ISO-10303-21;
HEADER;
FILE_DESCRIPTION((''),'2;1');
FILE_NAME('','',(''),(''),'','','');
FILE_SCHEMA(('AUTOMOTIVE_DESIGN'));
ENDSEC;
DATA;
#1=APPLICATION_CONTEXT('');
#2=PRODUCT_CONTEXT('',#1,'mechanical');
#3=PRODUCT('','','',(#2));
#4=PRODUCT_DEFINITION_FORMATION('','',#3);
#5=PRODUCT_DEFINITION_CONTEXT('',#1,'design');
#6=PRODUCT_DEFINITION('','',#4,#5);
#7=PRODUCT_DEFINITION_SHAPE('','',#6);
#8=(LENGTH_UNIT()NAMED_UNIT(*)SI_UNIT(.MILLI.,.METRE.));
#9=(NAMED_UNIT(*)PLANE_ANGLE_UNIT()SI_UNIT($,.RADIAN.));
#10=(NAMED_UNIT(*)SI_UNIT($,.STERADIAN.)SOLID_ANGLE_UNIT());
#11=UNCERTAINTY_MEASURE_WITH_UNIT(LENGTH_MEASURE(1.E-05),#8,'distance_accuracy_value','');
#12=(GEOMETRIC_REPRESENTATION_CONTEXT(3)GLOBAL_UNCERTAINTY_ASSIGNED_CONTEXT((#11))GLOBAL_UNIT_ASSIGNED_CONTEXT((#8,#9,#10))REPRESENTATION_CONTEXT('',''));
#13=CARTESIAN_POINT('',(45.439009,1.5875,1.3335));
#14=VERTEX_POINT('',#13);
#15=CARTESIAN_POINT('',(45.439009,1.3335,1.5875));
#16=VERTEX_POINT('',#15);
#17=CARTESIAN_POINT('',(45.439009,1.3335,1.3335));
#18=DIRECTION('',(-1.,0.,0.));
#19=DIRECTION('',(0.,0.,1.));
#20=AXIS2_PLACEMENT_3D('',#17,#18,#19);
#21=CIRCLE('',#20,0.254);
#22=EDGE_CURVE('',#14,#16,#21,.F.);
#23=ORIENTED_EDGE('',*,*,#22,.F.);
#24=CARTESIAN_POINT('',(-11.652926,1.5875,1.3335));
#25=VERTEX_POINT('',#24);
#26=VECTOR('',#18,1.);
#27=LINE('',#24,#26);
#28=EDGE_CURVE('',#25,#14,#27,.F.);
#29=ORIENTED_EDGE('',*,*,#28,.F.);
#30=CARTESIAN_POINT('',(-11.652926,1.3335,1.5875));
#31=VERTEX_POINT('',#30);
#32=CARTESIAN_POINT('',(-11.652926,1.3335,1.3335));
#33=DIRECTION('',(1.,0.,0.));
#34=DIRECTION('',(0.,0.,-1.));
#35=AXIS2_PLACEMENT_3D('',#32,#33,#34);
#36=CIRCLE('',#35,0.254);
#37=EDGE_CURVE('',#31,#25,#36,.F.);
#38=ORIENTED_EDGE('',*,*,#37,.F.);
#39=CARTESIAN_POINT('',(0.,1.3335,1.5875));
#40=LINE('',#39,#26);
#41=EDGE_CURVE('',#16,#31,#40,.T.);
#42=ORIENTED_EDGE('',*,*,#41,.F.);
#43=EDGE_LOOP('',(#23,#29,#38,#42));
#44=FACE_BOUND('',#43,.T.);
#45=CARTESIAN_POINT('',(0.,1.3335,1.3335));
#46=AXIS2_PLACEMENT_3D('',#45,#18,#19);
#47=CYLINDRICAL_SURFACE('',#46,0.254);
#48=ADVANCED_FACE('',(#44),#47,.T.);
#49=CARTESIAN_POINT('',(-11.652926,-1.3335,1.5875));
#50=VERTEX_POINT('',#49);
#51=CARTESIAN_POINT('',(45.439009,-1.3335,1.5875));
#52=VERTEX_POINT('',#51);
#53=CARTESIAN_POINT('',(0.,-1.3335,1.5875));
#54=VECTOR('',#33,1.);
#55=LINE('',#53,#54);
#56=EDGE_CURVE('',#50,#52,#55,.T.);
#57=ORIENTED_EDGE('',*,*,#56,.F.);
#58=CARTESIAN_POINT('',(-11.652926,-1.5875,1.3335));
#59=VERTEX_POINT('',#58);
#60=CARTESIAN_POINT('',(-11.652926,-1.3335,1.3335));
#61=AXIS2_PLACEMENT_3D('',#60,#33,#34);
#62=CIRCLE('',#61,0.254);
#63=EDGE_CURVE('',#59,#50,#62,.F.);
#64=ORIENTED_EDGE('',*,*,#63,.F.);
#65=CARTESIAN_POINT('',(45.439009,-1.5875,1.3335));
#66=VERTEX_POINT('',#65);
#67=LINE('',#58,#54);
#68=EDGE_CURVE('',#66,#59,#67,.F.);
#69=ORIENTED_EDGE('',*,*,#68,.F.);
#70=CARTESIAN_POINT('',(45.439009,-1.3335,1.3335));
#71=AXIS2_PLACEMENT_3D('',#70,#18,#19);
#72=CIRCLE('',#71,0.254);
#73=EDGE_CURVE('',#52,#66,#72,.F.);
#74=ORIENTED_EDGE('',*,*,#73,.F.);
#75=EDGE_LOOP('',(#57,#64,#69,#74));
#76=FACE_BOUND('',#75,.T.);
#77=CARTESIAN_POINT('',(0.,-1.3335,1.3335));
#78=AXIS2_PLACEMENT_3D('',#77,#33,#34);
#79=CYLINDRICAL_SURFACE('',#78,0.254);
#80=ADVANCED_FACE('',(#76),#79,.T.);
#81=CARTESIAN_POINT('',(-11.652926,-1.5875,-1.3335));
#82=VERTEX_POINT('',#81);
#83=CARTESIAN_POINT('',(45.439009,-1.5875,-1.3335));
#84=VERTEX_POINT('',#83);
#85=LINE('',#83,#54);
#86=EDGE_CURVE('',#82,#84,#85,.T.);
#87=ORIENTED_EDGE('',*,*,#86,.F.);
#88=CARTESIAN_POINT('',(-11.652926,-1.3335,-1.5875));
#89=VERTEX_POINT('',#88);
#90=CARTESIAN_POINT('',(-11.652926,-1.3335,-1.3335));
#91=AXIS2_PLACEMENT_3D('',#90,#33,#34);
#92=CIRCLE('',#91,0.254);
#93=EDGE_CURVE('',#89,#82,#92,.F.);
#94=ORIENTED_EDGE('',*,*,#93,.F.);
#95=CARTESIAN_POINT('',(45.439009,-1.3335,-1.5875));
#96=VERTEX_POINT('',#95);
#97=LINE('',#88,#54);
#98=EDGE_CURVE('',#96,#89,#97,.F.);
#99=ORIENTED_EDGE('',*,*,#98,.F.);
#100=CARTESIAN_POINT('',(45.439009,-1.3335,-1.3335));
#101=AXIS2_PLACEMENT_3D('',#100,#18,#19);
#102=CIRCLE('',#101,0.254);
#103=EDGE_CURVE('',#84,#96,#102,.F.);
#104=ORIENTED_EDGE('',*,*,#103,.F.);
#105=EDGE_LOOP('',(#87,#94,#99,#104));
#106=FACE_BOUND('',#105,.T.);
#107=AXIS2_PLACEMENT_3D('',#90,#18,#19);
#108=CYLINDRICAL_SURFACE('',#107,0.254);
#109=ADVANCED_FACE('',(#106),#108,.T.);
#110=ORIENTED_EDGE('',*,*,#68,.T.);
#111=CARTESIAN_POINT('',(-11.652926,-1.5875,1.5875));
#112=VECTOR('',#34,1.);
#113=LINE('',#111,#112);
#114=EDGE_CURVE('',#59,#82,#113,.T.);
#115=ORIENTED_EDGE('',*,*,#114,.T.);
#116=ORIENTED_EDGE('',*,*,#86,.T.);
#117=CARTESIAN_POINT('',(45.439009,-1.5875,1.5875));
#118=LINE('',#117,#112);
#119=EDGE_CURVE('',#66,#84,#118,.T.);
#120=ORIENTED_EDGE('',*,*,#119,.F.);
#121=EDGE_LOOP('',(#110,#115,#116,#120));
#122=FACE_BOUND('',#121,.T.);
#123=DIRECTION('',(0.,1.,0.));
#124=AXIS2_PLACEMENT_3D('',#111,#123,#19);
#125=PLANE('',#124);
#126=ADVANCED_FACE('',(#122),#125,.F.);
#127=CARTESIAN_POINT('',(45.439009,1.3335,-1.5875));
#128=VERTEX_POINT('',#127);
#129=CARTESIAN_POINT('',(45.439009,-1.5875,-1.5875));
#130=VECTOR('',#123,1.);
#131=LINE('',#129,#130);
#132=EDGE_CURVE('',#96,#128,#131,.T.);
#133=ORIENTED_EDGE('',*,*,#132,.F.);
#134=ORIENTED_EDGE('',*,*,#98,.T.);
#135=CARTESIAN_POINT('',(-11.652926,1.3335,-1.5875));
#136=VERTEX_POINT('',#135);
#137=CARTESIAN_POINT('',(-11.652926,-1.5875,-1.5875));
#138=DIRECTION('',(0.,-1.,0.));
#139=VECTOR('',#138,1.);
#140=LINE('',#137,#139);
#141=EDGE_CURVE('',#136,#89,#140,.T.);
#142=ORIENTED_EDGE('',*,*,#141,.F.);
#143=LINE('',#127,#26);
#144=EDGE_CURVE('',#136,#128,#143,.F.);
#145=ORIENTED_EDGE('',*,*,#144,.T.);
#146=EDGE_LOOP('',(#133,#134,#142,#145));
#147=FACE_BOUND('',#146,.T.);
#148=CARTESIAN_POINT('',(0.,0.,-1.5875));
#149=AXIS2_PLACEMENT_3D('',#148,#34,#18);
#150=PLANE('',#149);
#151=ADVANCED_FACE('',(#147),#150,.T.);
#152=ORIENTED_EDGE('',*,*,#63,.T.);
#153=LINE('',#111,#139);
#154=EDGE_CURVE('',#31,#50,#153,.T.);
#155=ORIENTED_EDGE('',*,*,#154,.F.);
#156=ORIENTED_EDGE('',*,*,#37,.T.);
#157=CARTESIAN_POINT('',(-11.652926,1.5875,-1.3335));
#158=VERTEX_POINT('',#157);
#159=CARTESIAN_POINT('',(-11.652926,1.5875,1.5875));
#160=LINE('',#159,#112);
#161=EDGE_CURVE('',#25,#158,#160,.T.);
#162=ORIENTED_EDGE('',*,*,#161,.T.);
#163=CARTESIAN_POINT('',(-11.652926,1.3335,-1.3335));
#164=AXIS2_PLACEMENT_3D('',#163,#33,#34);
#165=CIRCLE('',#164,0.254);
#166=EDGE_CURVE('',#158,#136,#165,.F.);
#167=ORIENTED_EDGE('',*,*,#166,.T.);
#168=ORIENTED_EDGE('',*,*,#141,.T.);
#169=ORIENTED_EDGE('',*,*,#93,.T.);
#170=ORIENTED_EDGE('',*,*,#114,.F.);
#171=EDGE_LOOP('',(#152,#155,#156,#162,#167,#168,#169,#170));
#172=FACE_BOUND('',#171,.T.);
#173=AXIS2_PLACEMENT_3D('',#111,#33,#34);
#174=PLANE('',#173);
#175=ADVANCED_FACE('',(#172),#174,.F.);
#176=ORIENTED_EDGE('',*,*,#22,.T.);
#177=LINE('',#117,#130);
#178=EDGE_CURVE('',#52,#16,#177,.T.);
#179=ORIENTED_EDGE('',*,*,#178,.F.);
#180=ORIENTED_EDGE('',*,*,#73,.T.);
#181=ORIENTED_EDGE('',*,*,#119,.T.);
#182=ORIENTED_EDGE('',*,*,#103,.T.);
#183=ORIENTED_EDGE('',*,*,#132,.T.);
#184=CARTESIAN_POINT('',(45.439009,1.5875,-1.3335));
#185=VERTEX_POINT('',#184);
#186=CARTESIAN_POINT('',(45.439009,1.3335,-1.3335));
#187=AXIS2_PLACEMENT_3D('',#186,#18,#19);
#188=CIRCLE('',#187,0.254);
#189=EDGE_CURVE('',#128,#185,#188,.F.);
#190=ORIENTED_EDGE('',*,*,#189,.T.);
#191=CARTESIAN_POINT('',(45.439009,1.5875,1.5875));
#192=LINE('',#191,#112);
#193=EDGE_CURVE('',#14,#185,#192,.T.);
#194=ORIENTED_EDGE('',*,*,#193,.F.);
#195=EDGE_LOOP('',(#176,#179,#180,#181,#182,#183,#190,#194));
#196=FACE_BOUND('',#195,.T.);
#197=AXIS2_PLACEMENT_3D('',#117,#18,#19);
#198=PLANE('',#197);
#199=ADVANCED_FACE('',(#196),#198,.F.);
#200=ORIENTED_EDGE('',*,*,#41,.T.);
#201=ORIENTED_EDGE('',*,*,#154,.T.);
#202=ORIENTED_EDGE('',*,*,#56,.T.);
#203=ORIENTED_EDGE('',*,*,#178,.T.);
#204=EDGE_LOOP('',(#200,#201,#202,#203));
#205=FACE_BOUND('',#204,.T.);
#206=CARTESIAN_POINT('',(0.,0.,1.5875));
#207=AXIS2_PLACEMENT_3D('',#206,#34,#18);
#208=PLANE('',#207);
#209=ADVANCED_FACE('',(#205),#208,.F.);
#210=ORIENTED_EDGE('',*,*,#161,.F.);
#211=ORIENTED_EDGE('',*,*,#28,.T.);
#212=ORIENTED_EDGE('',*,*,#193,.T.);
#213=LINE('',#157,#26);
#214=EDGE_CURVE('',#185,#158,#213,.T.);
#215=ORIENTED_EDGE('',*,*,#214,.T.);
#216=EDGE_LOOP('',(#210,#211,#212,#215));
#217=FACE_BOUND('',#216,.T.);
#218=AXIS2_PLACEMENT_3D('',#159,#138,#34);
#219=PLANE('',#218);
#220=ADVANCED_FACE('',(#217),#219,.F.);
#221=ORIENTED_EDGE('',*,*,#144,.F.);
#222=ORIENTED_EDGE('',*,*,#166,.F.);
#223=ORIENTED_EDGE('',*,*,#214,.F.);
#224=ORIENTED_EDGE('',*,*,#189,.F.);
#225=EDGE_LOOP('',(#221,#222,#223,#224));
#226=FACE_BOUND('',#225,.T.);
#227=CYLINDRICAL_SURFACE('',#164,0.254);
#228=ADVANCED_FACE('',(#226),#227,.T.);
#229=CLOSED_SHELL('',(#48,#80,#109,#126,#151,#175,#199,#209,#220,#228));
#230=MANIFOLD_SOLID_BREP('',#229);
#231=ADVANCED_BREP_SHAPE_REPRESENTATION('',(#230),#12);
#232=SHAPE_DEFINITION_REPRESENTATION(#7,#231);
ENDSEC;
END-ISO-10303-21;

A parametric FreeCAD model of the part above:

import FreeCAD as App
import Part
import Sketcher
from FreeCAD import Vector
Q = App.Units.Quantity


def edges_at(feature, points):
    """Names of the edges that pass closest to the given points."""
    edges = feature.Shape.Edges
    near = lambda p: min(range(len(edges)), key=lambda i: edges[i].distToShape(Part.Vertex(*p))[0])
    return sorted({f"Edge{near(p) + 1}" for p in points})

doc = App.newDocument("Part")
body = doc.addObject("PartDesign::Body", "Body")

# Sketch on XY plane
sketch1 = body.newObject("Sketcher::SketchObject", "Sketch")
sketch1.AttachmentSupport = (doc.getObject("XY_Plane"), [""])
sketch1.MapMode = "FlatFace"
sketch1.addGeometry([
    Part.LineSegment(Vector(-11.7, 1.6, 0), Vector(-11.7, -1.6, 0)),
    Part.LineSegment(Vector(-11.7, -1.6, 0), Vector(45.4, -1.6, 0)),
    Part.LineSegment(Vector(45.4, -1.6, 0), Vector(45.4, 1.6, 0)),
    Part.LineSegment(Vector(45.4, 1.6, 0), Vector(-11.7, 1.6, 0)),
], False)
sketch1.addConstraint([
    Sketcher.Constraint("Coincident", 0, 2, 1, 1),
    Sketcher.Constraint("Coincident", 1, 2, 2, 1),
    Sketcher.Constraint("Coincident", 2, 2, 3, 1),
    Sketcher.Constraint("Coincident", 3, 2, 0, 1),
    Sketcher.Constraint("Vertical", 0),
    Sketcher.Constraint("Horizontal", 1),
    Sketcher.Constraint("Vertical", 2),
    Sketcher.Constraint("Horizontal", 3),
    Sketcher.Constraint("DistanceY", 0, 2, 0, 1, Q("0.125 in")),
    Sketcher.Constraint("DistanceY", 0, 2, -1, 1, Q("0.0625 in")),
    Sketcher.Constraint("DistanceX", 1, 1, 1, 2, 57.091935),
    Sketcher.Constraint("DistanceX", -1, 1, 1, 2, 45.439009),
])
pad1 = body.newObject("PartDesign::Pad", "Pad")
pad1.Profile = sketch1
pad1.Length = Q("0.125 in")
pad1.Midplane = True
doc.recompute()

fillet = body.newObject("PartDesign::Fillet", "Fillet")
fillet.Base = (pad1, edges_at(pad1, [
    (16.893, -1.587, 1.587),
    (16.893, -1.587, -1.587),
    (16.893, 1.587, -1.587),
    (16.893, 1.587, 1.587),
]))
fillet.Radius = Q("0.01 in")

doc.recompute()
